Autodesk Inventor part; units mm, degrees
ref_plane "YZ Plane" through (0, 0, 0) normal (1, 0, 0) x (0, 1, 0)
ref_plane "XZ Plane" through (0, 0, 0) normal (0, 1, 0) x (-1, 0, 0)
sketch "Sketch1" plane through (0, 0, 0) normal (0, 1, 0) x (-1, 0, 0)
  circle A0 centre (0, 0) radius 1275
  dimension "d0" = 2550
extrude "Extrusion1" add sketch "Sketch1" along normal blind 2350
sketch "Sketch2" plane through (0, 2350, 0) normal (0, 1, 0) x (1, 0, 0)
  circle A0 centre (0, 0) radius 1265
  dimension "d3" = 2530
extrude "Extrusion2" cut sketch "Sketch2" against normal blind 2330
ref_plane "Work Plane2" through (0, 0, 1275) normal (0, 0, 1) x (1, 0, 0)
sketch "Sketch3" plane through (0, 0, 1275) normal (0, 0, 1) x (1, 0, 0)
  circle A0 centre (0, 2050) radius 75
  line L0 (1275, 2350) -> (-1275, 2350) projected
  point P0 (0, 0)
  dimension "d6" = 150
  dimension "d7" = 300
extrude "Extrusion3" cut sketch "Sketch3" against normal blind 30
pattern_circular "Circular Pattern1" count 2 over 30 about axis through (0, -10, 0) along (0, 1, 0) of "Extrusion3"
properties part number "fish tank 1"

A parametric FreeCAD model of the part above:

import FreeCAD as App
import Part
import Sketcher
from FreeCAD import Vector

doc = App.newDocument("Part")
body = doc.addObject("PartDesign::Body", "Body")

# Sketch on XZ plane
sketch1 = body.newObject("Sketcher::SketchObject", "Sketch")
sketch1.AttachmentSupport = (doc.getObject("XZ_Plane"), [""])
sketch1.MapMode = "FlatFace"
sketch1.addGeometry(Part.Circle(Vector(0, 0, 0), Vector(0, 0, 1), 1275), False)
sketch1.addConstraint([
    Sketcher.Constraint("Coincident", 0, 3, -1, 1),
    Sketcher.Constraint("Diameter", 0, 2550.0),
])
pad1 = body.newObject("PartDesign::Pad", "Pad")
pad1.Profile = sketch1
pad1.Length = 2350
pad1.Reversed = True

# Sketch on XZ plane
sketch2 = body.newObject("Sketcher::SketchObject", "Sketch001")
sketch2.AttachmentSupport = (doc.getObject("XZ_Plane"), [""])
sketch2.MapMode = "FlatFace"
sketch2.AttachmentOffset = App.Placement(Vector(0, 0, -2350), App.Rotation())
sketch2.addGeometry(Part.Circle(Vector(0, 0, 0), Vector(0, 0, 1), 1265), False)
sketch2.addConstraint([
    Sketcher.Constraint("Coincident", 0, 3, -1, 1),
    Sketcher.Constraint("Diameter", 0, 2530.0),
])
pocket1 = body.newObject("PartDesign::Pocket", "Pocket")
pocket1.Profile = sketch2
pocket1.Length = 2330
pocket1.Reversed = True

# Sketch on XY plane
sketch3 = body.newObject("Sketcher::SketchObject", "Sketch002")
sketch3.AttachmentSupport = (doc.getObject("XY_Plane"), [""])
sketch3.MapMode = "FlatFace"
sketch3.AttachmentOffset = App.Placement(Vector(0, 0, 1275), App.Rotation())
sketch3.addGeometry(Part.Circle(Vector(0, 2050, 0), Vector(0, 0, 1), 75), False)
sketch3.addConstraint([
    Sketcher.Constraint("PointOnObject", 0, 3, -2),
    Sketcher.Constraint("Diameter", 0, 150.0),
    Sketcher.Constraint("DistanceY", -1, 1, 0, 3, 2050.0),
])
pocket2 = body.newObject("PartDesign::Pocket", "Pocket001")
pocket2.Profile = sketch3
pocket2.Length = 30
doc.recompute()

polarpattern = body.newObject("PartDesign::PolarPattern", "PolarPattern")
polarpattern.Originals = [pocket2]
polarpattern.Axis = (doc.getObject("Y_Axis"), [""])
polarpattern.Angle = 30
polarpattern.Occurrences = 2
body.Tip = polarpattern

doc.recompute()
